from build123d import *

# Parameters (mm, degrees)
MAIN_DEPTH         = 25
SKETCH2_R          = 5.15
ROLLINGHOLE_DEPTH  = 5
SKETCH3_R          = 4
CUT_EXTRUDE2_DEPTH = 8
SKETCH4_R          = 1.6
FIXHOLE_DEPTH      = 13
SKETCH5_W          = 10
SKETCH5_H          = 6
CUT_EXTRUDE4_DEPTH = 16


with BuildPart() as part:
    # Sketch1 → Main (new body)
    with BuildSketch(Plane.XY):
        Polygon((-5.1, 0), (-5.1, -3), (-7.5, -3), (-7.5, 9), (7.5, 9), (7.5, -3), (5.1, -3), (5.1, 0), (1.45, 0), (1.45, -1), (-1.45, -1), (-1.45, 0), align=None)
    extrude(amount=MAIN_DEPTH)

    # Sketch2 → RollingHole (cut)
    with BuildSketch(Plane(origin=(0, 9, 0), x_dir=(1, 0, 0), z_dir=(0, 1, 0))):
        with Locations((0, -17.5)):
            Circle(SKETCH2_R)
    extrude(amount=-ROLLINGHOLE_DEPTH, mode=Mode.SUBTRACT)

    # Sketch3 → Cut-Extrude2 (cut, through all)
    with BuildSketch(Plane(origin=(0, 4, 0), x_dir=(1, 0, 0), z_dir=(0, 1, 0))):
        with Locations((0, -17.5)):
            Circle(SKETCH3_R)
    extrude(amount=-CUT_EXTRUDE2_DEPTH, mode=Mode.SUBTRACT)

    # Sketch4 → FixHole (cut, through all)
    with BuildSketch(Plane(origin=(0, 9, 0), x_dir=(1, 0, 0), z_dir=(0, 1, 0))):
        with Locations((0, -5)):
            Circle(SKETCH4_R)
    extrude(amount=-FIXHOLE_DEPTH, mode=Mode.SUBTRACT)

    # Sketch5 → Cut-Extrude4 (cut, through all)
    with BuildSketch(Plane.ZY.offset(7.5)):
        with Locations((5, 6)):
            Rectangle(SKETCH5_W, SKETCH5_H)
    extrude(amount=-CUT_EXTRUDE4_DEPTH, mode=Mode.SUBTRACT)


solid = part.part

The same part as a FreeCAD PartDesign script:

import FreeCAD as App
import Part
import Sketcher

V = App.Vector
Q = App.Units.Quantity


def add_polygon(sketch, points):
    """Adds a closed chain of lines whose ends are joined by coincident constraints."""
    first, n = sketch.GeometryCount, len(points)
    for a, b in zip(points, points[1:] + points[:1]):
        sketch.addGeometry(Part.LineSegment(App.Vector(*a, 0), App.Vector(*b, 0)), False)
    for i in range(n):
        sketch.addConstraint(Sketcher.Constraint("Coincident", first + i, 2, first + (i + 1) % n, 1))

doc = App.newDocument("Part")
params = doc.addObject("Spreadsheet::Sheet", "Params")
for row, (alias, value) in enumerate([
    ("sketch1_width", "15 mm"),
    ("sketch1_height", "3 mm"),
    ("sketch1_height2", "1 mm"),
    ("sketch1_height3", "12 mm"),
    ("sketch1_width2", "2.9 mm"),
    ("pad1_length", "25 mm"),
    ("sketch2_diameter", "10.3 mm"),
    ("pocket1_length", "5 mm"),
    ("sketch3_diameter", "8 mm"),
    ("sketch4_diameter", "3.2 mm"),
    ("sketch5_width", "6 mm"),
    ("sketch5_height", "10 mm"),
], start=1):
    params.set(f"A{row}", alias)
    params.set(f"B{row}", "=" + value)
    params.setAlias(f"B{row}", alias)

body = doc.addObject("PartDesign::Body", "Body")

sketch1 = body.newObject("Sketcher::SketchObject", "Sketch")
sketch1.AttachmentSupport = (doc.getObject("XY_Plane"), [""])
sketch1.MapMode = "FlatFace"
add_polygon(sketch1, [(-5.1, -3), (-5.1, 0), (-1.45, 0), (-1.45, -1), (1.45, -1), (1.45, 0), (5.1, 0), (5.1, -3), (7.5, -3), (7.5, 9), (-7.5, 9), (-7.5, -3)])
sketch1.addConstraint([
    Sketcher.Constraint("Vertical", 0),
    Sketcher.Constraint("Horizontal", 1),
    Sketcher.Constraint("Vertical", 2),
    Sketcher.Constraint("Horizontal", 3),
    Sketcher.Constraint("Vertical", 4),
    Sketcher.Constraint("Horizontal", 5),
    Sketcher.Constraint("Vertical", 6),
    Sketcher.Constraint("Horizontal", 7),
    Sketcher.Constraint("Vertical", 8),
    Sketcher.Constraint("Horizontal", 9),
    Sketcher.Constraint("Vertical", 10),
    Sketcher.Constraint("Horizontal", 11),
    Sketcher.Constraint("Symmetric", 1, 2, 4, 2, -1, 1),
    Sketcher.Constraint("Symmetric", 0, 2, 5, 2, -2),
    Sketcher.Constraint("Symmetric", 7, 2, 10, 2, -2),
    Sketcher.Constraint("DistanceX", 9, 2, 9, 1, Q("15 mm")),
    Sketcher.Constraint("DistanceY", 0, 1, 0, 2, Q("3 mm")),
    Sketcher.Constraint("DistanceY", 2, 2, 2, 1, Q("1 mm")),
    Sketcher.Constraint("DistanceY", 8, 1, 8, 2, Q("12 mm")),
    Sketcher.Constraint("DistanceX", 3, 1, 3, 2, Q("2.9 mm")),
    Sketcher.Constraint("DistanceX", 7, 1, 7, 2, Q("2.4 mm")),
])
sketch1.setExpression("Constraints[27]", "Params.sketch1_width")
sketch1.setExpression("Constraints[28]", "Params.sketch1_height")
sketch1.setExpression("Constraints[29]", "Params.sketch1_height2")
sketch1.setExpression("Constraints[30]", "Params.sketch1_height3")
sketch1.setExpression("Constraints[31]", "Params.sketch1_width2")
pad1 = body.newObject("PartDesign::Pad", "Pad")
pad1.Profile = sketch1
pad1.setExpression("Length", "Params.pad1_length")

sketch2 = body.newObject("Sketcher::SketchObject", "Sketch001")
sketch2.AttachmentSupport = (doc.getObject("XZ_Plane"), [""])
sketch2.MapMode = "FlatFace"
sketch2.AttachmentOffset = App.Placement(V(0, 0, -9), App.Rotation())
sketch2.addGeometry(Part.Circle(V(0, 17.5, 0), V(0, 0, 1), 5.15), False)
sketch2.addConstraint([
    Sketcher.Constraint("PointOnObject", 0, 3, -2),
    Sketcher.Constraint("Diameter", 0, Q("10.3 mm")),
    Sketcher.Constraint("DistanceY", -1, 1, 0, 3, Q("17.5 mm")),
])
sketch2.setExpression("Constraints[1]", "Params.sketch2_diameter")
pocket1 = body.newObject("PartDesign::Pocket", "Pocket")
pocket1.Profile = sketch2
pocket1.setExpression("Length", "Params.pocket1_length")
pocket1.Reversed = True

sketch3 = body.newObject("Sketcher::SketchObject", "Sketch002")
sketch3.AttachmentSupport = (doc.getObject("XZ_Plane"), [""])
sketch3.MapMode = "FlatFace"
sketch3.AttachmentOffset = App.Placement(V(0, 0, -4), App.Rotation())
sketch3.addGeometry(Part.Circle(V(0, 17.5, 0), V(0, 0, 1), 4), False)
sketch3.addConstraint([
    Sketcher.Constraint("PointOnObject", 0, 3, -2),
    Sketcher.Constraint("Diameter", 0, Q("8 mm")),
    Sketcher.Constraint("DistanceY", -1, 1, 0, 3, Q("17.5 mm")),
])
sketch3.setExpression("Constraints[1]", "Params.sketch3_diameter")
pocket2 = body.newObject("PartDesign::Pocket", "Pocket001")
pocket2.Profile = sketch3
pocket2.Type = "ThroughAll"
pocket2.Reversed = True

sketch4 = body.newObject("Sketcher::SketchObject", "Sketch003")
sketch4.AttachmentSupport = (doc.getObject("XZ_Plane"), [""])
sketch4.MapMode = "FlatFace"
sketch4.AttachmentOffset = App.Placement(V(0, 0, -9), App.Rotation())
sketch4.addGeometry(Part.Circle(V(0, 5, 0), V(0, 0, 1), 1.6), False)
sketch4.addConstraint([
    Sketcher.Constraint("PointOnObject", 0, 3, -2),
    Sketcher.Constraint("Diameter", 0, Q("3.2 mm")),
    Sketcher.Constraint("DistanceY", -1, 1, 0, 3, Q("5 mm")),
])
sketch4.setExpression("Constraints[1]", "Params.sketch4_diameter")
pocket3 = body.newObject("PartDesign::Pocket", "Pocket002")
pocket3.Profile = sketch4
pocket3.Type = "ThroughAll"
pocket3.Reversed = True

sketch5 = body.newObject("Sketcher::SketchObject", "Sketch004")
sketch5.AttachmentSupport = (doc.getObject("YZ_Plane"), [""])
sketch5.MapMode = "FlatFace"
sketch5.AttachmentOffset = App.Placement(V(0, 0, -7.5), App.Rotation())
add_polygon(sketch5, [(9, 0), (3, 0), (3, 10), (9, 10)])
sketch5.addConstraint([
    Sketcher.Constraint("Horizontal", 0),
    Sketcher.Constraint("Vertical", 1),
    Sketcher.Constraint("Horizontal", 2),
    Sketcher.Constraint("Vertical", 3),
    Sketcher.Constraint("PointOnObject", 0, 2, -1),
    Sketcher.Constraint("DistanceX", 0, 2, 0, 1, Q("6 mm")),
    Sketcher.Constraint("DistanceY", 1, 1, 1, 2, Q("10 mm")),
    Sketcher.Constraint("DistanceX", -1, 1, 0, 2, Q("3 mm")),
])
sketch5.setExpression("Constraints[9]", "Params.sketch5_width")
sketch5.setExpression("Constraints[10]", "Params.sketch5_height")
pocket4 = body.newObject("PartDesign::Pocket", "Pocket003")
pocket4.Profile = sketch5
pocket4.Type = "ThroughAll"
pocket4.Reversed = True

doc.recompute()
